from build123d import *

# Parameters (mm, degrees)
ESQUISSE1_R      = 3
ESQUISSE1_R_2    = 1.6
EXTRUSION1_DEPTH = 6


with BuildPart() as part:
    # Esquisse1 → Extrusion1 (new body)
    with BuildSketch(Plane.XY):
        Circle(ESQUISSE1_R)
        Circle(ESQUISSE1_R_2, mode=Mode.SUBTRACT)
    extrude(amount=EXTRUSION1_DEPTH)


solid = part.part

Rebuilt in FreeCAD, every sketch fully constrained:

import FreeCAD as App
import Part
import Sketcher

V = App.Vector
Q = App.Units.Quantity

doc = App.newDocument("Part")
params = doc.addObject("Spreadsheet::Sheet", "Params")
for row, (alias, value) in enumerate([
    ("sketch1_diameter", "6 mm"),
    ("sketch1_diameter2", "3.2 mm"),
    ("pad1_length", "6 mm"),
], start=1):
    params.set(f"A{row}", alias)
    params.set(f"B{row}", "=" + value)
    params.setAlias(f"B{row}", alias)

body = doc.addObject("PartDesign::Body", "Body")

sketch1 = body.newObject("Sketcher::SketchObject", "Sketch")
sketch1.AttachmentSupport = (doc.getObject("XY_Plane"), [""])
sketch1.MapMode = "FlatFace"
sketch1.addGeometry([
    Part.Circle(V(0, 0, 0), V(0, 0, 1), 3),
    Part.Circle(V(0, 0, 0), V(0, 0, 1), 1.6),
], False)
sketch1.addConstraint([
    Sketcher.Constraint("Coincident", 0, 3, -1, 1),
    Sketcher.Constraint("Coincident", 1, 3, -1, 1),
    Sketcher.Constraint("Diameter", 0, Q("6 mm")),
    Sketcher.Constraint("Diameter", 1, Q("3.2 mm")),
])
sketch1.setExpression("Constraints[2]", "Params.sketch1_diameter")
sketch1.setExpression("Constraints[3]", "Params.sketch1_diameter2")
pad1 = body.newObject("PartDesign::Pad", "Pad")
pad1.Profile = sketch1
pad1.setExpression("Length", "Params.pad1_length")

doc.recompute()
